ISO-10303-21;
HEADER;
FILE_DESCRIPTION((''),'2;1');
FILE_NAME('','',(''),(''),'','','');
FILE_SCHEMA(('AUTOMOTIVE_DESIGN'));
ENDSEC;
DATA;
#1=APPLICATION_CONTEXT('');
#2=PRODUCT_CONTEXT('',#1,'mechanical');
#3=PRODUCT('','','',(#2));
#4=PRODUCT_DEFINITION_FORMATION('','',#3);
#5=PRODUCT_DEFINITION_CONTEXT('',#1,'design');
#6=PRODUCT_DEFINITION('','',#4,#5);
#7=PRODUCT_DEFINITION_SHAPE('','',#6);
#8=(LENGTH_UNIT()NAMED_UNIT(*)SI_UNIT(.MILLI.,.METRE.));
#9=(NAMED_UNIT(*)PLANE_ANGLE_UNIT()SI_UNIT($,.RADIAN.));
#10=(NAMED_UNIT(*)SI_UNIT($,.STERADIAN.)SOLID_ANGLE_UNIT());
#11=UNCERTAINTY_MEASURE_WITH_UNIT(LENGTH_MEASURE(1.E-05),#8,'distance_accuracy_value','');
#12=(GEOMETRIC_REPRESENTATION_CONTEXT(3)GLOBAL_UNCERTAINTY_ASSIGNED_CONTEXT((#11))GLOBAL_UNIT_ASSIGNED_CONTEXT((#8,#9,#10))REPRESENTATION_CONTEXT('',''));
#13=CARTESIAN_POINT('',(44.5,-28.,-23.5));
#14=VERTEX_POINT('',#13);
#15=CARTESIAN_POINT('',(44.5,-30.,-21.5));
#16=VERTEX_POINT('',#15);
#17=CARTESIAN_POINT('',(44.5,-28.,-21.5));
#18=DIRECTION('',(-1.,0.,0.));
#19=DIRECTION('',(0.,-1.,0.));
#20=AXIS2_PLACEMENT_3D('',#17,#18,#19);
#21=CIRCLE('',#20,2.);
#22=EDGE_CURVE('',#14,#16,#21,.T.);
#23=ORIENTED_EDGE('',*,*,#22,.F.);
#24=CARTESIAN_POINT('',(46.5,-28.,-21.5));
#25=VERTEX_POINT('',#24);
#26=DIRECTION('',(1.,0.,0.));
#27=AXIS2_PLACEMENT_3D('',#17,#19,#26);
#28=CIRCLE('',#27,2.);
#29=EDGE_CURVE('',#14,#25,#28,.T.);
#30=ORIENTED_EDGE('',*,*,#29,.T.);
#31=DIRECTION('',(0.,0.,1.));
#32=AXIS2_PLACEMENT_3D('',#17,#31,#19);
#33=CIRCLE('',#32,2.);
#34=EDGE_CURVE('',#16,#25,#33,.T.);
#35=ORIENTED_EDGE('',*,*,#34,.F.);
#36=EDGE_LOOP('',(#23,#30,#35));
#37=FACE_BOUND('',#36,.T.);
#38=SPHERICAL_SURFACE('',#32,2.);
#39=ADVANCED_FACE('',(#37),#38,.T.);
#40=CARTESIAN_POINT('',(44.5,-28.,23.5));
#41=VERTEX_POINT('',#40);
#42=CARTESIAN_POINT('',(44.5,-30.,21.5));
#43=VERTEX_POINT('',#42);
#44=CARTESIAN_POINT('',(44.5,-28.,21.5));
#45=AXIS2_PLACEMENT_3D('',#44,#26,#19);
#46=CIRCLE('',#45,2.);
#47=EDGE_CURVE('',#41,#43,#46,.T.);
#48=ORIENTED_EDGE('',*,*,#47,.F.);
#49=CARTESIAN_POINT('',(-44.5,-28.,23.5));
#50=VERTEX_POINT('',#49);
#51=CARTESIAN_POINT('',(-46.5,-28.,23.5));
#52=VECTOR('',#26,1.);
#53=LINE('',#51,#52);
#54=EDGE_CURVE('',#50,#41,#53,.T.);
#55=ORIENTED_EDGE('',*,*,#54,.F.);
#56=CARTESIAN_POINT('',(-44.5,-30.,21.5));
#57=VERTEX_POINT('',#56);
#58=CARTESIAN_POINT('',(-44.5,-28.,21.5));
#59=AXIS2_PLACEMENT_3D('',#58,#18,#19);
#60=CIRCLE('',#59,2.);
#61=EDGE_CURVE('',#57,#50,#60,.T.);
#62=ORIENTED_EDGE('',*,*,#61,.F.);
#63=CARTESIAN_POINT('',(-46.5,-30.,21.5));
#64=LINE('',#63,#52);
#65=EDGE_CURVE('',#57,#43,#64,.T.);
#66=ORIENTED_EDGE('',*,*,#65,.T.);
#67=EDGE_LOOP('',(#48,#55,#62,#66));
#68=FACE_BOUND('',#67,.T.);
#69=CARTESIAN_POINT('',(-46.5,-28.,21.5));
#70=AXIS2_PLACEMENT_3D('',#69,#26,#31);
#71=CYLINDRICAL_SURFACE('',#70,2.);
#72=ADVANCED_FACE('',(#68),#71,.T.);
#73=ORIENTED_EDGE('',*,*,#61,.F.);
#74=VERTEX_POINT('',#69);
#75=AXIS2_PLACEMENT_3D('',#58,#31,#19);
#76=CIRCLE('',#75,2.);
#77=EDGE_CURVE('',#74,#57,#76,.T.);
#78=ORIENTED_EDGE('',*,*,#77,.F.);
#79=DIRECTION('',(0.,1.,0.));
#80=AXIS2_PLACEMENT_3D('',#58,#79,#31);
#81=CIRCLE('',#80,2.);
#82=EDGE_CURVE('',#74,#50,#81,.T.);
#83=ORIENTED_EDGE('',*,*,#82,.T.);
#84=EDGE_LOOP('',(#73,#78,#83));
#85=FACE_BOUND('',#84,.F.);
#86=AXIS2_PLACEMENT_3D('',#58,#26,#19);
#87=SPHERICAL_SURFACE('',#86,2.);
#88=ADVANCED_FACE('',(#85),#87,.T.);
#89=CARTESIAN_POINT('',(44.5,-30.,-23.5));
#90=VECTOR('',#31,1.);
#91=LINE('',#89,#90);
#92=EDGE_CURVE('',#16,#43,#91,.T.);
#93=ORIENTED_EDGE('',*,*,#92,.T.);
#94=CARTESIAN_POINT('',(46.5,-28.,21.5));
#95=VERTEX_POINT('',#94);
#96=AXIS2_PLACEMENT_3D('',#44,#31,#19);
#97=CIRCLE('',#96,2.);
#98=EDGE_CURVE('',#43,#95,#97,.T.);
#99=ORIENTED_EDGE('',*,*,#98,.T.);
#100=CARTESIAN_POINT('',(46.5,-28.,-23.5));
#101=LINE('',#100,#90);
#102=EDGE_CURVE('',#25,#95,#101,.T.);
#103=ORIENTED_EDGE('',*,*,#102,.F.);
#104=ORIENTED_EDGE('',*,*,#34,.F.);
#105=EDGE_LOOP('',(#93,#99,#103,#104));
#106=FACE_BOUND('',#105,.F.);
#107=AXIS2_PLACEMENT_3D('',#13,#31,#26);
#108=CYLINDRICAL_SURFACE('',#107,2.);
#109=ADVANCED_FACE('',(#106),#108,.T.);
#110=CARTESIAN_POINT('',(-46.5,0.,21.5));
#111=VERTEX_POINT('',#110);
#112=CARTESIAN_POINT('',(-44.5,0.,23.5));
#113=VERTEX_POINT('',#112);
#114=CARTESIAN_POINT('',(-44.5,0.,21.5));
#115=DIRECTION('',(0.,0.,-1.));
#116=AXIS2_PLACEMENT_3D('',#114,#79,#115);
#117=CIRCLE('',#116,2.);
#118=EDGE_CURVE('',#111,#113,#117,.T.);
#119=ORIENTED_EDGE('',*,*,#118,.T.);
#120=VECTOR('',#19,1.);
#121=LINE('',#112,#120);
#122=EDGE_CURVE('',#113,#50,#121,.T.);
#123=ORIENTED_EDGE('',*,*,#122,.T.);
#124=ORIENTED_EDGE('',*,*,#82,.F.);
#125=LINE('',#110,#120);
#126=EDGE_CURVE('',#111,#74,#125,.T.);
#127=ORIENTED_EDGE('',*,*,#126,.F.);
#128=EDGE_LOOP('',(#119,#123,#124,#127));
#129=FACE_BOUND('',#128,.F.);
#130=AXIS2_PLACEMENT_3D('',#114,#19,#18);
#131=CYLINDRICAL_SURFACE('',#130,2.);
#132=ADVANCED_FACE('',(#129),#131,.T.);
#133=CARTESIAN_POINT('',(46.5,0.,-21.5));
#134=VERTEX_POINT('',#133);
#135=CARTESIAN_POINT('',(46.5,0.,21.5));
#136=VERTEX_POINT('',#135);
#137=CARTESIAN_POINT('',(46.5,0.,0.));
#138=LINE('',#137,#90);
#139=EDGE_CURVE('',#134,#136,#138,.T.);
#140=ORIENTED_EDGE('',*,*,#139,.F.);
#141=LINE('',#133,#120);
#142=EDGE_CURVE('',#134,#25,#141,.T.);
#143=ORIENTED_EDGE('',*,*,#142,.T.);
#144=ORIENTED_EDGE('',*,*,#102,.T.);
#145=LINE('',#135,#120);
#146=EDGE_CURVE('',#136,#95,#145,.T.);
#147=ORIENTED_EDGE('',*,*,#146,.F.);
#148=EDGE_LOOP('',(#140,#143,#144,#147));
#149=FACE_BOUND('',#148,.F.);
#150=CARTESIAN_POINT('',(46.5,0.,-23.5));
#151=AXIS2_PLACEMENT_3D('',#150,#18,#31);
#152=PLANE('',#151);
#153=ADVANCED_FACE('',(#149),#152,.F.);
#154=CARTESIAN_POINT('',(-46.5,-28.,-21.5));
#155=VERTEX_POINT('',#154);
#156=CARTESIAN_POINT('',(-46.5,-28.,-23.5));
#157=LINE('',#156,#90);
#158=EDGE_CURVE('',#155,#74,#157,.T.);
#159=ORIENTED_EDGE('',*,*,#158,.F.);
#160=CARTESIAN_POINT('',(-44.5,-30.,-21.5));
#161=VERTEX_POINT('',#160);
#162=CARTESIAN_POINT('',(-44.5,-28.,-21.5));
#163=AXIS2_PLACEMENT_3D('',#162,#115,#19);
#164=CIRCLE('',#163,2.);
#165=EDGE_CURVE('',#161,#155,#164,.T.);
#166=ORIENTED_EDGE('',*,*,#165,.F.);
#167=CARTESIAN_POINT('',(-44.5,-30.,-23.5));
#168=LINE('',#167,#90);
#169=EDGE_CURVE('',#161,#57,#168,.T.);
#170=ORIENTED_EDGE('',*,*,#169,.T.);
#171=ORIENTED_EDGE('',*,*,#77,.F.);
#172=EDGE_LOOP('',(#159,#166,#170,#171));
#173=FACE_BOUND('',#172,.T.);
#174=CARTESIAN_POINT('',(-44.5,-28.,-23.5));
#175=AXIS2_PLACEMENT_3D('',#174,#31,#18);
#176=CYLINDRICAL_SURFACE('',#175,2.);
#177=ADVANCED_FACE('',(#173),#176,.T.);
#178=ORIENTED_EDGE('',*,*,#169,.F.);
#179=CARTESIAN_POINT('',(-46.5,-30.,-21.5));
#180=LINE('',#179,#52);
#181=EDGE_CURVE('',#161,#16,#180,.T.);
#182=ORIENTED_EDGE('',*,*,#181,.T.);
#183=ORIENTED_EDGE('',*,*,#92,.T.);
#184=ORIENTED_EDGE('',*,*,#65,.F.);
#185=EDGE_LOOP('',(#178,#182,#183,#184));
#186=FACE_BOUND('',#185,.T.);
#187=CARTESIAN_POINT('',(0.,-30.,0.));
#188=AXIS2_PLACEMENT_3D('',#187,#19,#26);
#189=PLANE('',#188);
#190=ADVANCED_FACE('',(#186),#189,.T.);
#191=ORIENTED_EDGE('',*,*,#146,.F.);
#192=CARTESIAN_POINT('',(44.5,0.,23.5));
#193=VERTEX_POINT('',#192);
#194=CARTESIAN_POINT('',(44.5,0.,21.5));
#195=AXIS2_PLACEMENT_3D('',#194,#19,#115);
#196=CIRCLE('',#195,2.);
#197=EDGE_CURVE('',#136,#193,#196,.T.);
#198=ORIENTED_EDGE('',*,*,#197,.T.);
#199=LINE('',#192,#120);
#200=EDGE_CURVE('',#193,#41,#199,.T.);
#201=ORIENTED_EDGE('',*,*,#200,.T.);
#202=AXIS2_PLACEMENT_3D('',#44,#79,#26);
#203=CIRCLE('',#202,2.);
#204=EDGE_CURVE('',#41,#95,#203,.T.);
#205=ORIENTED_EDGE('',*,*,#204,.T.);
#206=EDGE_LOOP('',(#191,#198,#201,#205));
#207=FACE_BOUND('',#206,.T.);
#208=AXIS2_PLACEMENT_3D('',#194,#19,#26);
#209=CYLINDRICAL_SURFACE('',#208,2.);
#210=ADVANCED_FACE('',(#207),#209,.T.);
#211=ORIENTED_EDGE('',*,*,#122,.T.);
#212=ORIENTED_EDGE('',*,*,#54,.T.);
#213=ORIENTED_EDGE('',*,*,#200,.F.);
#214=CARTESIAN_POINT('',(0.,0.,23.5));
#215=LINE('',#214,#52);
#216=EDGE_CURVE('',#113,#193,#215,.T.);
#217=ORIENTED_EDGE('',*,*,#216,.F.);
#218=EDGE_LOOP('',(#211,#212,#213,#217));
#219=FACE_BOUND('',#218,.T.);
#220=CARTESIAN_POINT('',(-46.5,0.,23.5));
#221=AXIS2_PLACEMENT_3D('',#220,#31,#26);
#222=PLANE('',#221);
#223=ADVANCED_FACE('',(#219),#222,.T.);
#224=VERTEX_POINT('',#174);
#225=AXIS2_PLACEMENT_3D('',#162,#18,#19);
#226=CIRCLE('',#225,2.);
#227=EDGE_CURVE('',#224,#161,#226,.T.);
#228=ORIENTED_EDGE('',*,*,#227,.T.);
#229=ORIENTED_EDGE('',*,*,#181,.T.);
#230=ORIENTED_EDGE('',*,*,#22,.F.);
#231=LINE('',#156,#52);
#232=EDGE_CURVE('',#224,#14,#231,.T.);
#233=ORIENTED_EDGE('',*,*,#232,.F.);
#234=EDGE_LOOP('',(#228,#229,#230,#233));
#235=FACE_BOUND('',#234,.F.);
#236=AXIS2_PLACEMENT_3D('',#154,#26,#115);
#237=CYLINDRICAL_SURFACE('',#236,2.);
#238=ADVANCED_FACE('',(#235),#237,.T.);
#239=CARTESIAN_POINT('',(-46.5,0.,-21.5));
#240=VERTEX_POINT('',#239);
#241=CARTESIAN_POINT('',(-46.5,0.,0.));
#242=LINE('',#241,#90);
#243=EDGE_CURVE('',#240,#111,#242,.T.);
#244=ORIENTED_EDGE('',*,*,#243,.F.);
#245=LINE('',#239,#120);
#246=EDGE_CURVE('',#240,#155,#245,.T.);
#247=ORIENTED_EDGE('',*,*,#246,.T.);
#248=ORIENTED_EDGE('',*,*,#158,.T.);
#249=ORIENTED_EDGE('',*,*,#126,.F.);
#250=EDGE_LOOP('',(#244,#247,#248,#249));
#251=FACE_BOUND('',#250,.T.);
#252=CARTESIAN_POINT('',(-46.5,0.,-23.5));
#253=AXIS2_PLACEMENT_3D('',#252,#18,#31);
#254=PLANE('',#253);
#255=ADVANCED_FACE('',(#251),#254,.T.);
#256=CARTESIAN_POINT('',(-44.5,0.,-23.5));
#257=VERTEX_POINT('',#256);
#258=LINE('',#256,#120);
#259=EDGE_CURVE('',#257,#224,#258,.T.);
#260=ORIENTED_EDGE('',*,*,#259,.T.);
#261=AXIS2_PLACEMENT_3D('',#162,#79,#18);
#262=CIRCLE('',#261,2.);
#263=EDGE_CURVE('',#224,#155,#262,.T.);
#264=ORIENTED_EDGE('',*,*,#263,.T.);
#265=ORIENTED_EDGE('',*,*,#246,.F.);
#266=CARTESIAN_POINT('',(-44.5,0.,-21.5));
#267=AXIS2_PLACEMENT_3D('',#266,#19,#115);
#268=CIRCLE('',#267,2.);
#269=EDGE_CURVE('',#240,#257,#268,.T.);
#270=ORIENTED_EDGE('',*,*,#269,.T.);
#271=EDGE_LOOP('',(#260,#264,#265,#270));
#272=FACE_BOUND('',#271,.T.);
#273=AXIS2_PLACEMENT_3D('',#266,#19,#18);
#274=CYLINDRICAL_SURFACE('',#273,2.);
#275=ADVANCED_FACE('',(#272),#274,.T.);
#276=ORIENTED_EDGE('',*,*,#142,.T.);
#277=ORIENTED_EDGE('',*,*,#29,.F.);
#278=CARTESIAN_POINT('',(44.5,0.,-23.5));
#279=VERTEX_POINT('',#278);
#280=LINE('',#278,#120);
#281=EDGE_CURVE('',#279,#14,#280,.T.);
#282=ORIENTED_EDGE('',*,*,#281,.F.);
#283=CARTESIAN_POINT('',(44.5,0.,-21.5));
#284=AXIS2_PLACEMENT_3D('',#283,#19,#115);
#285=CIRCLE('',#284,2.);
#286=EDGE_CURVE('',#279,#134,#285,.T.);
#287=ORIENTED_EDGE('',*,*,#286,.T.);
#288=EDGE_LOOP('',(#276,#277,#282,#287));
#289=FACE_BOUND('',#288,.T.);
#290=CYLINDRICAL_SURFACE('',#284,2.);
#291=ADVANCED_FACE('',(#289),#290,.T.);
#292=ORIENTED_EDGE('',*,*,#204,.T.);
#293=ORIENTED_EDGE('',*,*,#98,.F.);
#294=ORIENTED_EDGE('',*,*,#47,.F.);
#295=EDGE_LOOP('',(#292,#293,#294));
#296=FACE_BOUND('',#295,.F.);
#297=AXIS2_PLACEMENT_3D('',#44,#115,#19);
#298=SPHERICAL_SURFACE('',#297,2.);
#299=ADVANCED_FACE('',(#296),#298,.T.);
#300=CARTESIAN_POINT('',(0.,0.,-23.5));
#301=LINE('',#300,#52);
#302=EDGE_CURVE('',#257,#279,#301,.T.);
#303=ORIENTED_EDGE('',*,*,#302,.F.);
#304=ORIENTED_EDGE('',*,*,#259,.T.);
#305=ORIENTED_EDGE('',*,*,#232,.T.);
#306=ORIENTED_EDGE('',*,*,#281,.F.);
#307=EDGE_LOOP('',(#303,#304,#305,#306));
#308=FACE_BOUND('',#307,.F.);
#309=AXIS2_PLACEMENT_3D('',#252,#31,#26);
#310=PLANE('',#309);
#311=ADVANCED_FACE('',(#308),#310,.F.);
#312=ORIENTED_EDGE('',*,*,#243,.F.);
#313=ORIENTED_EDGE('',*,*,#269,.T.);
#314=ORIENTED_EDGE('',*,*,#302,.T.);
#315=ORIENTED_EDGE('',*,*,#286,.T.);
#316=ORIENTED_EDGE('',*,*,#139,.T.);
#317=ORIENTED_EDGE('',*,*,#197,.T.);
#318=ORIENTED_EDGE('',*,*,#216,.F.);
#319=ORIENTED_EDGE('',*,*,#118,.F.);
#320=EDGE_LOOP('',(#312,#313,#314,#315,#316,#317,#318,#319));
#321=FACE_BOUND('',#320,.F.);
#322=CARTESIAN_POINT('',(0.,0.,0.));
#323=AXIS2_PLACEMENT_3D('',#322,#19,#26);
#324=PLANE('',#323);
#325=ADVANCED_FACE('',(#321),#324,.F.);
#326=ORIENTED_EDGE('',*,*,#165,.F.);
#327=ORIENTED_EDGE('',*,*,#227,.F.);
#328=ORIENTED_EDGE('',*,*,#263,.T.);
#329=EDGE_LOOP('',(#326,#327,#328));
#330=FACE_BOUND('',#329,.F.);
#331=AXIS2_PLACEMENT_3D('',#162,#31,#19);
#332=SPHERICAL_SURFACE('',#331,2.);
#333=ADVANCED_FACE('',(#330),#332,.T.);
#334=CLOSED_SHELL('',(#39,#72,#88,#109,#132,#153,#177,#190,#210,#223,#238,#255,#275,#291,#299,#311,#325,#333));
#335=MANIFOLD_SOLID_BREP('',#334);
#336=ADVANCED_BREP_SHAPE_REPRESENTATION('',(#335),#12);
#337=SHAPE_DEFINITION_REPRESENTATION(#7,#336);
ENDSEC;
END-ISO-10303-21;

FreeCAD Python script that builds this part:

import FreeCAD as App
import Part
import Sketcher
Q = App.Units.Quantity


def edges_at(feature, points):
    """Names of the edges that pass closest to the given points."""
    edges = feature.Shape.Edges
    near = lambda p: min(range(len(edges)), key=lambda i: edges[i].distToShape(Part.Vertex(*p))[0])
    return sorted({f"Edge{near(p) + 1}" for p in points})

doc = App.newDocument("Part")
body = doc.addObject("PartDesign::Body", "Body")

# Sketch on XZ plane
sketch1 = body.newObject("Sketcher::SketchObject", "Sketch")
sketch1.AttachmentSupport = (doc.getObject("XZ_Plane"), [""])
sketch1.MapMode = "FlatFace"
sketch1.addGeometry(Part.LineSegment(App.Vector(-46, 24, 0), App.Vector(-46, -24, 0)), False)
sketch1.addGeometry(Part.LineSegment(App.Vector(-46, -24, 0), App.Vector(46, -24, 0)), False)
sketch1.addGeometry(Part.LineSegment(App.Vector(46, -24, 0), App.Vector(46, 24, 0)), False)
sketch1.addGeometry(Part.LineSegment(App.Vector(46, 24, 0), App.Vector(-46, 24, 0)), False)
sketch1.addConstraint(Sketcher.Constraint("Coincident", 0, 2, 1, 1))
sketch1.addConstraint(Sketcher.Constraint("Coincident", 1, 2, 2, 1))
sketch1.addConstraint(Sketcher.Constraint("Coincident", 2, 2, 3, 1))
sketch1.addConstraint(Sketcher.Constraint("Coincident", 3, 2, 0, 1))
sketch1.addConstraint(Sketcher.Constraint("Vertical", 0))
sketch1.addConstraint(Sketcher.Constraint("Horizontal", 1))
sketch1.addConstraint(Sketcher.Constraint("Vertical", 2))
sketch1.addConstraint(Sketcher.Constraint("Horizontal", 3))
sketch1.addConstraint(Sketcher.Constraint("Symmetric", 0, 2, 2, 2, -1, 1))
sketch1.addConstraint(Sketcher.Constraint("DistanceX", 1, 1, 1, 2, Q("93 mm")))
sketch1.addConstraint(Sketcher.Constraint("DistanceY", 0, 2, 0, 1, Q("47 mm")))
pad1 = body.newObject("PartDesign::Pad", "Pad")
pad1.Profile = sketch1
pad1.Length = 30
doc.recompute()

fillet = body.newObject("PartDesign::Fillet", "Fillet")
fillet.Base = (pad1, edges_at(pad1, [
    (46.5, -30, 0),
    (0, -30, 23.5),
    (-46.5, -30, 0),
    (0, -30, -23.5),
    (-46.5, -15, 23.5),
    (-46.5, -15, -23.5),
    (46.5, -15, -23.5),
    (46.5, -15, 23.5),
]))
fillet.Radius = 2

doc.recompute()
